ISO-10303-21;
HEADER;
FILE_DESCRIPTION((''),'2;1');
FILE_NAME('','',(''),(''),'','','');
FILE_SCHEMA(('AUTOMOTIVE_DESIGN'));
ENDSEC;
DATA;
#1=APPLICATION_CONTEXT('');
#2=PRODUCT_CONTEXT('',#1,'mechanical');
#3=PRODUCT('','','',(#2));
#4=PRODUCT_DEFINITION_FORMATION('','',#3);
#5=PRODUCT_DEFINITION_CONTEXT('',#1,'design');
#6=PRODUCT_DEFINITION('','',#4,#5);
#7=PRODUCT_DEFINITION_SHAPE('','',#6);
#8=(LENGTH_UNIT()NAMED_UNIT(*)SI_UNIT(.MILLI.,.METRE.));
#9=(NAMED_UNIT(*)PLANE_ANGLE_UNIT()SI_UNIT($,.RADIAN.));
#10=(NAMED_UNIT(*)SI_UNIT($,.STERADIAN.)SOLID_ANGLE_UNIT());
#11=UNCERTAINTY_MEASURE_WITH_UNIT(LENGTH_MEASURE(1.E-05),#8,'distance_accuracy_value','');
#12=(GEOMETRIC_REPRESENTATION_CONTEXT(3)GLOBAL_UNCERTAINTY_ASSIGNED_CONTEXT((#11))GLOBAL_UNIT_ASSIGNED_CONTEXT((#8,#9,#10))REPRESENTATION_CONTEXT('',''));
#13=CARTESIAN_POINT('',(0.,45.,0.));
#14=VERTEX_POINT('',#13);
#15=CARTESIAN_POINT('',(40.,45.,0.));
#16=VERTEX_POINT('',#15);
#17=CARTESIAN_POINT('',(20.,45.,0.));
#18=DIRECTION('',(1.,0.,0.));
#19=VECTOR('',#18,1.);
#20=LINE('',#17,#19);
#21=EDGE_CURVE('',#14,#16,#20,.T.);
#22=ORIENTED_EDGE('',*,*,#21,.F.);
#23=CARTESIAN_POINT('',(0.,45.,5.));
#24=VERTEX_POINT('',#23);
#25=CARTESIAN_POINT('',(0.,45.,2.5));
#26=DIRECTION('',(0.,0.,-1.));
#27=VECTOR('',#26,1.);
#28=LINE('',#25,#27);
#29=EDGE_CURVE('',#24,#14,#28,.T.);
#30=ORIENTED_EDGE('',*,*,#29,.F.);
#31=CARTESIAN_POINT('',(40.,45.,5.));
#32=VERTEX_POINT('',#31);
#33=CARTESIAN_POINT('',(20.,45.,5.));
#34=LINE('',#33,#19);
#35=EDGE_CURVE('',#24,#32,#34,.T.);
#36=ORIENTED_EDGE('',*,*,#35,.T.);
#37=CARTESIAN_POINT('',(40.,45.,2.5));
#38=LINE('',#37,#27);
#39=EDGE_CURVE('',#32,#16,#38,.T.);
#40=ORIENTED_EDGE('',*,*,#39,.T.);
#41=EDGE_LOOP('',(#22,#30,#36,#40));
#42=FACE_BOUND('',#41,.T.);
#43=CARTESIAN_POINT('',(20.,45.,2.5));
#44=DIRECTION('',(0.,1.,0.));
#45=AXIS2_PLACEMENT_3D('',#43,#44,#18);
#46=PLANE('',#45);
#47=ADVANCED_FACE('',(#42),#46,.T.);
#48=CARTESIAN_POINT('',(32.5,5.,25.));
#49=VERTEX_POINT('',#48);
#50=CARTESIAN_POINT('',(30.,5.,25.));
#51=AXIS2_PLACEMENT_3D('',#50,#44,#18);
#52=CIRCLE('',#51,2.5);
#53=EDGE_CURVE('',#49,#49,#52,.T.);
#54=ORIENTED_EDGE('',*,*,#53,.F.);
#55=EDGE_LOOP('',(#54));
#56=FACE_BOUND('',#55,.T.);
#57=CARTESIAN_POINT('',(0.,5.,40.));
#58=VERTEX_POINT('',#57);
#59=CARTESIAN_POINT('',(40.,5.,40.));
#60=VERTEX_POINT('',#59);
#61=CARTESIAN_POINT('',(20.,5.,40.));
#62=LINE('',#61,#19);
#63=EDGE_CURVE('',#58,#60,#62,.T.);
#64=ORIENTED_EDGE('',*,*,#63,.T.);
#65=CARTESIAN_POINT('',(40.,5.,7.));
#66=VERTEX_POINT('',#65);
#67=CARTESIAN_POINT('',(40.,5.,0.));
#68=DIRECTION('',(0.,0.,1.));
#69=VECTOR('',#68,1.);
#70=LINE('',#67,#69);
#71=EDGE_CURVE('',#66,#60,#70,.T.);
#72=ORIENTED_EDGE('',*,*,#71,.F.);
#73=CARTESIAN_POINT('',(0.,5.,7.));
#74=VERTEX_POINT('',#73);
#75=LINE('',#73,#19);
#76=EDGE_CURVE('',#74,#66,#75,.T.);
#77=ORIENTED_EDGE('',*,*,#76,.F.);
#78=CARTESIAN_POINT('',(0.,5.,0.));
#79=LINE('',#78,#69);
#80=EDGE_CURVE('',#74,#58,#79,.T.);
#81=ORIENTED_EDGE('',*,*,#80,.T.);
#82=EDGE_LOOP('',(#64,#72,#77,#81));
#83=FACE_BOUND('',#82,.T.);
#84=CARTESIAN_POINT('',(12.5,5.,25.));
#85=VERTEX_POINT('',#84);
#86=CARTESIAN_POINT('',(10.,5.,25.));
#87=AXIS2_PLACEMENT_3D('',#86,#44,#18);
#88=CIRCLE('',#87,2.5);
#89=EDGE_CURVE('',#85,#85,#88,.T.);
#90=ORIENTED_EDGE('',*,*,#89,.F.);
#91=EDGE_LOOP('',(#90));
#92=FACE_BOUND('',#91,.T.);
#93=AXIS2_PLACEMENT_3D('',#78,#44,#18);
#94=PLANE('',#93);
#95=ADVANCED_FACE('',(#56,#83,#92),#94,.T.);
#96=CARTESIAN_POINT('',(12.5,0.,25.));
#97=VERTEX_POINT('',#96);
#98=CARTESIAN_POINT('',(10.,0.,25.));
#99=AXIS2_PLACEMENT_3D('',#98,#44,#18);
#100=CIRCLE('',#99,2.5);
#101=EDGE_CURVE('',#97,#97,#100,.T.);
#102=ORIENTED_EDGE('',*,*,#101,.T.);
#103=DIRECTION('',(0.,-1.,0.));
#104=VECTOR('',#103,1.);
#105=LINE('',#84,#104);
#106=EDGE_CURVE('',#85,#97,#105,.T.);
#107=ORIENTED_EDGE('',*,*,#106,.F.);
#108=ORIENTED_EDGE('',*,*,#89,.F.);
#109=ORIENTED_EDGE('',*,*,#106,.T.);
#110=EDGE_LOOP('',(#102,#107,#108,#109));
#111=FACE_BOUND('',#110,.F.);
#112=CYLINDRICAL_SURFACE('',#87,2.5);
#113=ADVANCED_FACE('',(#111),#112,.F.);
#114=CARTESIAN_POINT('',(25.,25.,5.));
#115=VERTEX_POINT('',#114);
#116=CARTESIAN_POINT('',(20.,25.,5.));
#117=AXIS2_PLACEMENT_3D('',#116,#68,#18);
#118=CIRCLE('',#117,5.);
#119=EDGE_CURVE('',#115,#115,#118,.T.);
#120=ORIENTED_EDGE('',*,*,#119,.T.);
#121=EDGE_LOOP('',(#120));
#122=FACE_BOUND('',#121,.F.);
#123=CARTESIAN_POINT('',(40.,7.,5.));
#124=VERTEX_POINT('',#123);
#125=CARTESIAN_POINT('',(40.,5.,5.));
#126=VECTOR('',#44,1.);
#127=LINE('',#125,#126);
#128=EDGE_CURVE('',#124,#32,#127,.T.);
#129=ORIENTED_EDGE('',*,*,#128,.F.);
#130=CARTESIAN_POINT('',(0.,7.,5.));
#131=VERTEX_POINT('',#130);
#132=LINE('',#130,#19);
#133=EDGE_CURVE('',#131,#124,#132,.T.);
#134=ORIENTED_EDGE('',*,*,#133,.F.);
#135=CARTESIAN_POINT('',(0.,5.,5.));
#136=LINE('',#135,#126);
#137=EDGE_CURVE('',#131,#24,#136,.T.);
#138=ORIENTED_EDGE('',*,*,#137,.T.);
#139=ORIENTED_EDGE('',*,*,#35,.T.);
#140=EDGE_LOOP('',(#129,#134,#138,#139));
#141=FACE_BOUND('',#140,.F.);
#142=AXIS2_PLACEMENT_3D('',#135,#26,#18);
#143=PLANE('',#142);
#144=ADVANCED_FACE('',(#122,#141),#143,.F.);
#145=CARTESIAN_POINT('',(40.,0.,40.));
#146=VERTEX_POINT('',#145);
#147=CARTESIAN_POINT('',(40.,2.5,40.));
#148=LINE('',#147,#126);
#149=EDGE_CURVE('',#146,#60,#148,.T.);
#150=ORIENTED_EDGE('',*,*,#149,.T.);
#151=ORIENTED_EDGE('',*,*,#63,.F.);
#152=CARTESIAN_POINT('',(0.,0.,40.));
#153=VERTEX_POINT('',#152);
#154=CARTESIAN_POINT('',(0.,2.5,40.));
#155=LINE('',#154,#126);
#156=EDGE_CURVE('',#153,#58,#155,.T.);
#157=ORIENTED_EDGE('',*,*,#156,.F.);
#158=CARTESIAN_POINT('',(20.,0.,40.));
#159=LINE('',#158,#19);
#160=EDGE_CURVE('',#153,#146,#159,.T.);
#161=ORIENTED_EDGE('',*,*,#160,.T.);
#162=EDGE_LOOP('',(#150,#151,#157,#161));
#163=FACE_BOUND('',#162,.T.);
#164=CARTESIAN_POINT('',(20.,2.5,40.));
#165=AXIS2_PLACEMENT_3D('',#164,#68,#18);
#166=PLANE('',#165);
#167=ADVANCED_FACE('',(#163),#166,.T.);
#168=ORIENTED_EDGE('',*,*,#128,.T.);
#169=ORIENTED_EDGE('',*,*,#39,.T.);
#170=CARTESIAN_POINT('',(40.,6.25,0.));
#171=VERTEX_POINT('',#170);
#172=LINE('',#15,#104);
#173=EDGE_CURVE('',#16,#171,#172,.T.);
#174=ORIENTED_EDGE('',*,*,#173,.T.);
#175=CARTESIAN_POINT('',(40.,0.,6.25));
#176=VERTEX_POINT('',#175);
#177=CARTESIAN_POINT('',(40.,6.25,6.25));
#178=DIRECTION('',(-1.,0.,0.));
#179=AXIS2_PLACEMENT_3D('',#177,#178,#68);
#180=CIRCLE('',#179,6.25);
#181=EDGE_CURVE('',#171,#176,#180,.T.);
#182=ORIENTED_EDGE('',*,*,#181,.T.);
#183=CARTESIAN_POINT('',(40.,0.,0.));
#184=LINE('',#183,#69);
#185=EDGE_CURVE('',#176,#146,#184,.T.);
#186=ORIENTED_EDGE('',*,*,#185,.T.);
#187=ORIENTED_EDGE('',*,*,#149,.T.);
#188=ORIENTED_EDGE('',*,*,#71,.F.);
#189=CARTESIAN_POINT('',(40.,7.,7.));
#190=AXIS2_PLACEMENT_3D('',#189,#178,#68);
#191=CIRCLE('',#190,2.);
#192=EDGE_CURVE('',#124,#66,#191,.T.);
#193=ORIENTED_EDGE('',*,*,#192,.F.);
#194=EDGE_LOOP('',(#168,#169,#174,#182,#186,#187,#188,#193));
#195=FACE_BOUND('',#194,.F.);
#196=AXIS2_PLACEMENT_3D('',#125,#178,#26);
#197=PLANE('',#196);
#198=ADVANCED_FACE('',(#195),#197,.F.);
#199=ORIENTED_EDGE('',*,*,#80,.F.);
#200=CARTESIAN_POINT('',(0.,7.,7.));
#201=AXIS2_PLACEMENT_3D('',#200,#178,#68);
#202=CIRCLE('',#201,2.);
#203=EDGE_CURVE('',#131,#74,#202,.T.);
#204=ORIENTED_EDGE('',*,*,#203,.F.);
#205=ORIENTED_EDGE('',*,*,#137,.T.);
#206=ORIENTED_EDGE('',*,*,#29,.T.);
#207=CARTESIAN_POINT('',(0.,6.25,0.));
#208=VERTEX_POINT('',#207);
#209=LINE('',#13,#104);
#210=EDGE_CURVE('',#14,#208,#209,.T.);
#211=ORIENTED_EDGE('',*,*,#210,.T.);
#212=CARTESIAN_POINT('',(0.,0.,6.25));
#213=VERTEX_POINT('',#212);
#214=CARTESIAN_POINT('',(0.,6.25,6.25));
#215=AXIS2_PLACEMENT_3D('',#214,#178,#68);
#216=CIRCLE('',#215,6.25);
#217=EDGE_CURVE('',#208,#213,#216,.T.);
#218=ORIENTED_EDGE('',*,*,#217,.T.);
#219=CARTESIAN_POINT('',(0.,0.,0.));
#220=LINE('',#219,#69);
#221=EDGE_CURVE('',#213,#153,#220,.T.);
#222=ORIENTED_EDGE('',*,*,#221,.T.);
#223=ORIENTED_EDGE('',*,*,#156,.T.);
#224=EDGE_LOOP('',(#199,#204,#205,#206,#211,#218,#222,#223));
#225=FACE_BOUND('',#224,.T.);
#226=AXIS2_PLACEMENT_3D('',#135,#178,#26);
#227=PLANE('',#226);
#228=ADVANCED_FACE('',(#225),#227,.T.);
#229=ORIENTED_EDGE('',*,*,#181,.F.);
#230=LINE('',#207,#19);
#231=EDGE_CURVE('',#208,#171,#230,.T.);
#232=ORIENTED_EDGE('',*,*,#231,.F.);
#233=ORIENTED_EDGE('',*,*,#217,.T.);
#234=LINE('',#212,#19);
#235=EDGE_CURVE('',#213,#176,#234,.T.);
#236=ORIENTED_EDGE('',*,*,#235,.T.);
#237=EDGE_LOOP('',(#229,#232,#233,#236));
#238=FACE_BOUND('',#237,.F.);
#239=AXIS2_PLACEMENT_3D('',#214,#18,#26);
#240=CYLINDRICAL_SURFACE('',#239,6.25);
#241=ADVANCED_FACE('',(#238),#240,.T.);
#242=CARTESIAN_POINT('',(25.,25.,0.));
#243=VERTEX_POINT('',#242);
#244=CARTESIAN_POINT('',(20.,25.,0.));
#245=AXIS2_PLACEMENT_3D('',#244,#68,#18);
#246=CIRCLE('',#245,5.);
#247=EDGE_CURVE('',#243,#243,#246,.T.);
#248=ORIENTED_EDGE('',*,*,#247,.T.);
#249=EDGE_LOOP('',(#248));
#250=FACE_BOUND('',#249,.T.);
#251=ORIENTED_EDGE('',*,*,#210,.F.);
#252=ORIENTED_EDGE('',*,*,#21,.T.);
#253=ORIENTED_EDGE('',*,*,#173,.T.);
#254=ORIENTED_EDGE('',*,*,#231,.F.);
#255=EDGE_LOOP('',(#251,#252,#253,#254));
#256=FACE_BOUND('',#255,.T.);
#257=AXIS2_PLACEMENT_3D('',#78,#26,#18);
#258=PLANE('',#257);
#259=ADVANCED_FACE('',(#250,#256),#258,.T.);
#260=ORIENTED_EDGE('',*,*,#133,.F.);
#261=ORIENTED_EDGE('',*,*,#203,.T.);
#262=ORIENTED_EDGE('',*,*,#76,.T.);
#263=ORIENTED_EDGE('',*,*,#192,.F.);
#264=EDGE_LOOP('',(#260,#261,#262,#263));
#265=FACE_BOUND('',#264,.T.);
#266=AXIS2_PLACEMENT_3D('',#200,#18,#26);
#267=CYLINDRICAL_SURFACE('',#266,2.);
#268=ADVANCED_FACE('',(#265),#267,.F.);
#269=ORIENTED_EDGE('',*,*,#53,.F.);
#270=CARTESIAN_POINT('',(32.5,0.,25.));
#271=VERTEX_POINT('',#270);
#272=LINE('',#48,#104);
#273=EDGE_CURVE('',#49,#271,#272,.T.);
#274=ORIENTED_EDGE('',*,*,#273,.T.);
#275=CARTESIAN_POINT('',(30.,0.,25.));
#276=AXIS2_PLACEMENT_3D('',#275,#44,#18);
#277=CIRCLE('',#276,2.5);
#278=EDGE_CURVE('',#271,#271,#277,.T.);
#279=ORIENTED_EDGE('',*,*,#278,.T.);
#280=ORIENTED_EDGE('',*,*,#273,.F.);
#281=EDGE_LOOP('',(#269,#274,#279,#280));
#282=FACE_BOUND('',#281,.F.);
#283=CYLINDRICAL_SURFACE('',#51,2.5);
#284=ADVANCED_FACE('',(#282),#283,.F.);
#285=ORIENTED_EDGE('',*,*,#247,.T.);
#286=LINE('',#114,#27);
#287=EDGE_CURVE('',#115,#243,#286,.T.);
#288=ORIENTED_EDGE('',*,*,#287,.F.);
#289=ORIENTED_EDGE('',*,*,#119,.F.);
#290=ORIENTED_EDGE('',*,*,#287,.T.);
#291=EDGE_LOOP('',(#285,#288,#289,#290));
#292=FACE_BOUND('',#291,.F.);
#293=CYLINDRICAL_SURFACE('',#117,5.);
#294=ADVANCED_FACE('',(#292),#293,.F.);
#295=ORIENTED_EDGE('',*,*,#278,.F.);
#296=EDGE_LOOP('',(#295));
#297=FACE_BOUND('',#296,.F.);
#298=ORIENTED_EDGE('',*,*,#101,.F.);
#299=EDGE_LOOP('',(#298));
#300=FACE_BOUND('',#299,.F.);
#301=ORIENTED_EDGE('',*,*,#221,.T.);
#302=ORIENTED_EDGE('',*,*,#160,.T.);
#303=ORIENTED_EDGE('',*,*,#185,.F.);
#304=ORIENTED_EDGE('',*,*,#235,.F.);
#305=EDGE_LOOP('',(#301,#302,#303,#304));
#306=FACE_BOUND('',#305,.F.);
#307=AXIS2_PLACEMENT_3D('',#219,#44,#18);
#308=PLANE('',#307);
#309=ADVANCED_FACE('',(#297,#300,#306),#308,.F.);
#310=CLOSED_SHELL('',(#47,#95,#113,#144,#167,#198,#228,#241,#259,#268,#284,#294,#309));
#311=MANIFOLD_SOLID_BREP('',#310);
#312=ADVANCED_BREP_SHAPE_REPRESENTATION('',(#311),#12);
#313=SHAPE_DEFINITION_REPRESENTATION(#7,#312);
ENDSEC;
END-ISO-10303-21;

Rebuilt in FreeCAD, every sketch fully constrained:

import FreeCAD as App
import Part
import Sketcher
Q = App.Units.Quantity


def edges_at(feature, points):
    """Names of the edges that pass closest to the given points."""
    edges = feature.Shape.Edges
    near = lambda p: min(range(len(edges)), key=lambda i: edges[i].distToShape(Part.Vertex(*p))[0])
    return sorted({f"Edge{near(p) + 1}" for p in points})


def add_polygon(sketch, points):
    """Adds a closed chain of lines whose ends are joined by coincident constraints."""
    first, n = sketch.GeometryCount, len(points)
    for a, b in zip(points, points[1:] + points[:1]):
        sketch.addGeometry(Part.LineSegment(App.Vector(*a, 0), App.Vector(*b, 0)), False)
    for i in range(n):
        sketch.addConstraint(Sketcher.Constraint("Coincident", first + i, 2, first + (i + 1) % n, 1))

doc = App.newDocument("Part")
body = doc.addObject("PartDesign::Body", "Body")

# Sketch on XY plane
sketch1 = body.newObject("Sketcher::SketchObject", "Sketch")
sketch1.AttachmentSupport = (doc.getObject("XY_Plane"), [""])
sketch1.MapMode = "FlatFace"
add_polygon(sketch1, [(0, 5), (0, 0), (40, 0), (40, 5)])  # lines 0-3
sketch1.addConstraint([
    Sketcher.Constraint("Vertical", 0),
    Sketcher.Constraint("Horizontal", 1),
    Sketcher.Constraint("Vertical", 2),
    Sketcher.Constraint("Horizontal", 3),
    Sketcher.Constraint("Coincident", 0, 2, -1, 1),
    Sketcher.Constraint("DistanceX", 1, 1, 1, 2, Q("40 mm")),
    Sketcher.Constraint("DistanceY", 0, 2, 0, 1, Q("5 mm")),
])
pad1 = body.newObject("PartDesign::Pad", "Pad")
pad1.Profile = sketch1
pad1.Length = 40

# Sketch on XZ plane
sketch2 = body.newObject("Sketcher::SketchObject", "Sketch001")
sketch2.AttachmentSupport = (doc.getObject("XZ_Plane"), [""])
sketch2.MapMode = "FlatFace"
sketch2.AttachmentOffset = App.Placement(App.Vector(0, 0, -5), App.Rotation())
add_polygon(sketch2, [(0, 0), (0, 5), (40, 5), (40, 0)])  # lines 0-3
sketch2.addConstraint([
    Sketcher.Constraint("Vertical", 0),
    Sketcher.Constraint("Horizontal", 1),
    Sketcher.Constraint("Vertical", 2),
    Sketcher.Constraint("Horizontal", 3),
    Sketcher.Constraint("Coincident", 3, 2, -1, 1),
    Sketcher.Constraint("DistanceX", 1, 1, 1, 2, Q("40 mm")),
    Sketcher.Constraint("DistanceY", 0, 1, 0, 2, Q("5 mm")),
])
pad2 = body.newObject("PartDesign::Pad", "Pad001")
pad2.Profile = sketch2
pad2.Length = 40
pad2.Reversed = True

# Sketch on XZ plane
sketch3 = body.newObject("Sketcher::SketchObject", "Sketch002")
sketch3.AttachmentSupport = (doc.getObject("XZ_Plane"), [""])
sketch3.MapMode = "FlatFace"
sketch3.AttachmentOffset = App.Placement(App.Vector(0, 0, -5), App.Rotation())
sketch3.addGeometry([
    Part.Circle(App.Vector(10, 25, 0), App.Vector(0, 0, 1), 2.5),
    Part.Circle(App.Vector(30, 25, 0), App.Vector(0, 0, 1), 2.5),
], False)
sketch3.addConstraint([
    Sketcher.Constraint("Equal", 0, 1),
    Sketcher.Constraint("Horizontal", 0, 3, 1, 3),
    Sketcher.Constraint("Diameter", 0, Q("5 mm")),
    Sketcher.Constraint("DistanceX", -1, 1, 0, 3, Q("10 mm")),
    Sketcher.Constraint("DistanceY", -1, 1, 0, 3, Q("25 mm")),
    Sketcher.Constraint("DistanceX", -1, 1, 1, 3, Q("30 mm")),
])
pocket1 = body.newObject("PartDesign::Pocket", "Pocket")
pocket1.Profile = sketch3
pocket1.Length = 10
pocket1.Reversed = True

# Sketch on XY plane
sketch4 = body.newObject("Sketcher::SketchObject", "Sketch003")
sketch4.AttachmentSupport = (doc.getObject("XY_Plane"), [""])
sketch4.MapMode = "FlatFace"
sketch4.AttachmentOffset = App.Placement(App.Vector(0, 0, 5), App.Rotation())
sketch4.addGeometry(Part.Circle(App.Vector(20, 25, 0), App.Vector(0, 0, 1), 5), False)
sketch4.addConstraint([
    Sketcher.Constraint("Diameter", 0, Q("10 mm")),
    Sketcher.Constraint("DistanceX", -1, 1, 0, 3, Q("20 mm")),
    Sketcher.Constraint("DistanceY", -1, 1, 0, 3, Q("25 mm")),
])
pocket2 = body.newObject("PartDesign::Pocket", "Pocket001")
pocket2.Profile = sketch4
pocket2.Length = 10
doc.recompute()

fillet = body.newObject("PartDesign::Fillet", "Fillet")
fillet.Base = (pocket2, edges_at(pocket2, [(20, 0, 0)]))
fillet.Radius = 6.25
doc.recompute()

fillet2 = body.newObject("PartDesign::Fillet", "Fillet001")
fillet2.Base = (fillet, edges_at(fillet, [(20, 5, 5)]))
fillet2.Radius = 2

doc.recompute()
